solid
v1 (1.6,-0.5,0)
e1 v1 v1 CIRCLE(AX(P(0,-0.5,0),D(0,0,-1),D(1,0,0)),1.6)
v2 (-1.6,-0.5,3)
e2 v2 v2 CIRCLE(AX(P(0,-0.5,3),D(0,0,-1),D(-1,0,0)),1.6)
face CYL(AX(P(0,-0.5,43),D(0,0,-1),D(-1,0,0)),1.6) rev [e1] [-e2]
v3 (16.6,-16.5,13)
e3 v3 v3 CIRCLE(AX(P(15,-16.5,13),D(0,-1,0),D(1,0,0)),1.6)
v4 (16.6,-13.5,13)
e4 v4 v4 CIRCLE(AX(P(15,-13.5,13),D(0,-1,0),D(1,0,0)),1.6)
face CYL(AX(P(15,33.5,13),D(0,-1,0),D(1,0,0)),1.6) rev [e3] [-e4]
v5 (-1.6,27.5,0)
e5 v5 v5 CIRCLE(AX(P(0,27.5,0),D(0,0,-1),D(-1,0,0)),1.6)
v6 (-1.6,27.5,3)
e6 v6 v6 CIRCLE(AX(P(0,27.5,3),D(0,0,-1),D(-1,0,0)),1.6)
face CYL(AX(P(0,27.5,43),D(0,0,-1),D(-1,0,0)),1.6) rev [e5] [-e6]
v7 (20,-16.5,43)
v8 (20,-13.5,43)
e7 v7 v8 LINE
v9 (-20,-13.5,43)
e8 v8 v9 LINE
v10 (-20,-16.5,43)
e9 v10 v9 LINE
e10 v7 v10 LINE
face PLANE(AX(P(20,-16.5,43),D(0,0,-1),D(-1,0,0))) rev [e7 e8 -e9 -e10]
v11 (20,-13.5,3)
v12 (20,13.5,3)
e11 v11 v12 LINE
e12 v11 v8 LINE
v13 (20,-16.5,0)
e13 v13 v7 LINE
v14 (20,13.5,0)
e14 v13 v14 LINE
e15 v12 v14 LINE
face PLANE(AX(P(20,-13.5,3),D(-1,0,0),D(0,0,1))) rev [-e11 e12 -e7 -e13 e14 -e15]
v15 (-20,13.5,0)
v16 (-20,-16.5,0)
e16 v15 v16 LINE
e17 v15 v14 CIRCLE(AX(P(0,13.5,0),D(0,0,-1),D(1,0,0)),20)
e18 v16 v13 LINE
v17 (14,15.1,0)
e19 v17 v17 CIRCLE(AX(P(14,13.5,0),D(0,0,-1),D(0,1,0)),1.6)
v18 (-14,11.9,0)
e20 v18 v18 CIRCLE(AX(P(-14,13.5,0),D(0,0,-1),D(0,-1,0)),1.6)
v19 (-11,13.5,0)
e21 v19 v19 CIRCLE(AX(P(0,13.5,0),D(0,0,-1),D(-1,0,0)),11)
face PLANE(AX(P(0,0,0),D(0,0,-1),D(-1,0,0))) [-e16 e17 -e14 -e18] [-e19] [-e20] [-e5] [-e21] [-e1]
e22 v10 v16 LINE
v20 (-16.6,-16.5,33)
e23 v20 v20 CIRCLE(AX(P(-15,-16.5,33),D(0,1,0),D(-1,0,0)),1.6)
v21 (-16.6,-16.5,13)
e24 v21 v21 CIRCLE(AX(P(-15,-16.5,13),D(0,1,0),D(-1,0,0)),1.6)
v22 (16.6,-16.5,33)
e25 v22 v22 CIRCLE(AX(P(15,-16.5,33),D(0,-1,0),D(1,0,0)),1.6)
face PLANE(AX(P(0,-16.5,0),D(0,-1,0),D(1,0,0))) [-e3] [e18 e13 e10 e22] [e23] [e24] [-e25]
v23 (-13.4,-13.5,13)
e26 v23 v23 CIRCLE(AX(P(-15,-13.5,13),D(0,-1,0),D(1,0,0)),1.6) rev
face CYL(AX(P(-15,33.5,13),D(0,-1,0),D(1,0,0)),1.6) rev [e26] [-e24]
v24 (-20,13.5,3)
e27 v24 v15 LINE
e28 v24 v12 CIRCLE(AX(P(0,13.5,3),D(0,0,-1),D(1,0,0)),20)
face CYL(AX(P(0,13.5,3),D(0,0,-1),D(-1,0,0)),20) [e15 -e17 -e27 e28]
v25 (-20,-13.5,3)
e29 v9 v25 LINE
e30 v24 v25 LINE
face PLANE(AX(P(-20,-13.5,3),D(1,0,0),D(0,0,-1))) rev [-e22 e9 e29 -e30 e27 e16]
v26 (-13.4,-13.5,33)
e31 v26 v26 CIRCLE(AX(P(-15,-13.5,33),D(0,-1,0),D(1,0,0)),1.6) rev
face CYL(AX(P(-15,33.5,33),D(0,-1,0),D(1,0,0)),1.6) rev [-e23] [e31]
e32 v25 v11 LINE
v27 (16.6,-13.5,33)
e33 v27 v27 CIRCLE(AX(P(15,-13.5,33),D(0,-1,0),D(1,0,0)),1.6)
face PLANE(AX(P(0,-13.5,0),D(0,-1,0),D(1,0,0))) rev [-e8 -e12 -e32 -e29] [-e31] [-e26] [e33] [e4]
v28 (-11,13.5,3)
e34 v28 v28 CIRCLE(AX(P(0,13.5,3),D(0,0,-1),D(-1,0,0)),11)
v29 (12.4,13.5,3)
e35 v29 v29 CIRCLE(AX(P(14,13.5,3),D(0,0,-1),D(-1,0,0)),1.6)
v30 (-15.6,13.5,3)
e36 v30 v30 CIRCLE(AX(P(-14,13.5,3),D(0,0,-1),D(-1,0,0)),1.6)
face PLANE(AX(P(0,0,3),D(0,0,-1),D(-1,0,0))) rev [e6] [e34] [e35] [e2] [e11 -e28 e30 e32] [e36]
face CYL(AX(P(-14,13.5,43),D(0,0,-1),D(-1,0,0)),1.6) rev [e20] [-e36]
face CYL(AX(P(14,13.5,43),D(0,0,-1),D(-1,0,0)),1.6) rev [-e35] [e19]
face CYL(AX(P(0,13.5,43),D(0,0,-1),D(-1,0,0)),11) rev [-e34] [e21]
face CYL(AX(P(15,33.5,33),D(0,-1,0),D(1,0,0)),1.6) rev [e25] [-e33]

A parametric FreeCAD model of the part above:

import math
import FreeCAD as App
import Part
import Sketcher

V = App.Vector
Q = App.Units.Quantity

doc = App.newDocument("Part")
params = doc.addObject("Spreadsheet::Sheet", "Params")
for row, (alias, value) in enumerate([
    ("sketch1_width", "40 mm"),
    ("sketch1_height", "27 mm"),
    ("pad1_length", "3 mm"),
    ("sketch2_radius", "20 mm"),
    ("pad2_length", "3 mm"),
    ("sketch3_width", "40 mm"),
    ("sketch3_height", "43 mm"),
    ("pad3_length", "3 mm"),
    ("sketch4_diameter", "22 mm"),
    ("sketch5_diameter", "3.2 mm"),
    ("sketch6_diameter", "3.2 mm"),
    ("linearpattern_pitch", "20 mm"),
    ("sketch7_diameter", "3.2 mm"),
], start=1):
    params.set(f"A{row}", alias)
    params.set(f"B{row}", "=" + value)
    params.setAlias(f"B{row}", alias)

body = doc.addObject("PartDesign::Body", "Body")

# Sketch on XY plane
sketch1 = doc.addObject("Sketcher::SketchObject", "Sketch")
body.addObject(sketch1)
sketch1.AttachmentSupport = (doc.XY_Plane, [""])
sketch1.MapMode = "FlatFace"
sketch1.addGeometry([
    Part.LineSegment(V(-20, 13.5, 0), V(-20, -13.5, 0)),
    Part.LineSegment(V(-20, -13.5, 0), V(20, -13.5, 0)),
    Part.LineSegment(V(20, -13.5, 0), V(20, 13.5, 0)),
    Part.LineSegment(V(20, 13.5, 0), V(-20, 13.5, 0)),
], False)
sketch1.addConstraint([
    Sketcher.Constraint("Coincident", 0, 2, 1, 1),
    Sketcher.Constraint("Coincident", 1, 2, 2, 1),
    Sketcher.Constraint("Coincident", 2, 2, 3, 1),
    Sketcher.Constraint("Coincident", 3, 2, 0, 1),
    Sketcher.Constraint("Vertical", 0),
    Sketcher.Constraint("Horizontal", 1),
    Sketcher.Constraint("Vertical", 2),
    Sketcher.Constraint("Horizontal", 3),
    Sketcher.Constraint("Symmetric", 0, 2, 2, 2, -1, 1),
    Sketcher.Constraint("DistanceX", 1, 1, 1, 2, Q("40 mm")),
    Sketcher.Constraint("DistanceY", 0, 2, 0, 1, Q("27 mm")),
])
sketch1.setExpression("Constraints[9]", "Params.sketch1_width")
sketch1.setExpression("Constraints[10]", "Params.sketch1_height")
pad1 = doc.addObject("PartDesign::Pad", "Pad")
body.addObject(pad1)
pad1.Profile = sketch1
pad1.setExpression("Length", "Params.pad1_length")

# Sketch on XY plane
sketch2 = doc.addObject("Sketcher::SketchObject", "Sketch001")
body.addObject(sketch2)
sketch2.AttachmentSupport = (doc.XY_Plane, [""])
sketch2.MapMode = "FlatFace"
sketch2.addGeometry([
    Part.LineSegment(V(20, 13.5, 0), V(-20, 13.5, 0)),
    Part.ArcOfCircle(Part.Circle(V(0, 13.5, 0), V(0, 0, 1), 20), math.radians(0), math.radians(180)),
], False)
sketch2.addConstraint([
    Sketcher.Constraint("Coincident", 0, 1, 1, 1),
    Sketcher.Constraint("Coincident", 1, 2, 0, 2),
    Sketcher.Constraint("Horizontal", 0),
    Sketcher.Constraint("PointOnObject", 1, 3, -2),
    Sketcher.Constraint("Horizontal", 1, 3, 0, 1),
    Sketcher.Constraint("Radius", 1, Q("20 mm")),
    Sketcher.Constraint("DistanceY", -1, 1, 1, 3, Q("13.5 mm")),
])
sketch2.setExpression("Constraints[5]", "Params.sketch2_radius")
pad2 = doc.addObject("PartDesign::Pad", "Pad001")
body.addObject(pad2)
pad2.Profile = sketch2
pad2.setExpression("Length", "Params.pad2_length")

# Sketch on XZ plane
sketch3 = doc.addObject("Sketcher::SketchObject", "Sketch002")
body.addObject(sketch3)
sketch3.AttachmentSupport = (doc.XZ_Plane, [""])
sketch3.MapMode = "FlatFace"
sketch3.AttachmentOffset = App.Placement(V(0, 0, 13.5), App.Rotation())
sketch3.addGeometry([
    Part.LineSegment(V(-20, 43, 0), V(-20, 0, 0)),
    Part.LineSegment(V(-20, 0, 0), V(20, 0, 0)),
    Part.LineSegment(V(20, 0, 0), V(20, 43, 0)),
    Part.LineSegment(V(20, 43, 0), V(-20, 43, 0)),
], False)
sketch3.addConstraint([
    Sketcher.Constraint("Coincident", 0, 2, 1, 1),
    Sketcher.Constraint("Coincident", 1, 2, 2, 1),
    Sketcher.Constraint("Coincident", 2, 2, 3, 1),
    Sketcher.Constraint("Coincident", 3, 2, 0, 1),
    Sketcher.Constraint("Vertical", 0),
    Sketcher.Constraint("Horizontal", 1),
    Sketcher.Constraint("Vertical", 2),
    Sketcher.Constraint("Horizontal", 3),
    Sketcher.Constraint("Symmetric", 0, 2, 1, 2, -1, 1),
    Sketcher.Constraint("DistanceX", 1, 1, 1, 2, Q("40 mm")),
    Sketcher.Constraint("DistanceY", 0, 2, 0, 1, Q("43 mm")),
])
sketch3.setExpression("Constraints[9]", "Params.sketch3_width")
sketch3.setExpression("Constraints[10]", "Params.sketch3_height")
pad3 = doc.addObject("PartDesign::Pad", "Pad002")
body.addObject(pad3)
pad3.Profile = sketch3
pad3.setExpression("Length", "Params.pad3_length")

# Sketch on XY plane
sketch4 = doc.addObject("Sketcher::SketchObject", "Sketch003")
body.addObject(sketch4)
sketch4.AttachmentSupport = (doc.XY_Plane, [""])
sketch4.MapMode = "FlatFace"
sketch4.addGeometry(Part.Circle(V(0, 13.5, 0), V(0, 0, 1), 11), False)
sketch4.addConstraint([
    Sketcher.Constraint("PointOnObject", 0, 3, -2),
    Sketcher.Constraint("Diameter", 0, Q("22 mm")),
    Sketcher.Constraint("DistanceY", -1, 1, 0, 3, Q("13.5 mm")),
])
sketch4.setExpression("Constraints[1]", "Params.sketch4_diameter")
pocket1 = doc.addObject("PartDesign::Pocket", "Pocket")
body.addObject(pocket1)
pocket1.Profile = sketch4
pocket1.Type = "ThroughAll"
pocket1.Reversed = True

# Sketch on XY plane
sketch5 = doc.addObject("Sketcher::SketchObject", "Sketch004")
body.addObject(sketch5)
sketch5.AttachmentSupport = (doc.XY_Plane, [""])
sketch5.MapMode = "FlatFace"
sketch5.addGeometry(Part.Circle(V(0, 27.5, 0), V(0, 0, 1), 1.6), False)
sketch5.addConstraint([
    Sketcher.Constraint("PointOnObject", 0, 3, -2),
    Sketcher.Constraint("Diameter", 0, Q("3.2 mm")),
    Sketcher.Constraint("DistanceY", -1, 1, 0, 3, Q("27.5 mm")),
])
sketch5.setExpression("Constraints[1]", "Params.sketch5_diameter")
pocket2 = doc.addObject("PartDesign::Pocket", "Pocket001")
body.addObject(pocket2)
pocket2.Profile = sketch5
pocket2.Type = "ThroughAll"
pocket2.Reversed = True
doc.recompute()

datumline = doc.addObject("PartDesign::Line", "DatumLine")
body.addObject(datumline)
datumline.Placement = App.Placement(V(0, 13.5, 0), App.Rotation(V(0, 0, 1), V(0, 0, 1)))
polarpattern = doc.addObject("PartDesign::PolarPattern", "PolarPattern")
body.addObject(polarpattern)
polarpattern.Originals = [pocket2]
polarpattern.Axis = (datumline, [""])
polarpattern.Angle = 360
polarpattern.Occurrences = 4
body.Tip = polarpattern

# Sketch on XZ plane
sketch6 = doc.addObject("Sketcher::SketchObject", "Sketch005")
body.addObject(sketch6)
sketch6.AttachmentSupport = (doc.XZ_Plane, [""])
sketch6.MapMode = "FlatFace"
sketch6.AttachmentOffset = App.Placement(V(0, 0, 16.5), App.Rotation())
sketch6.addGeometry(Part.Circle(V(15, 33, 0), V(0, 0, 1), 1.6), False)
sketch6.addConstraint([
    Sketcher.Constraint("Diameter", 0, Q("3.2 mm")),
    Sketcher.Constraint("DistanceX", -1, 1, 0, 3, Q("15 mm")),
    Sketcher.Constraint("DistanceY", -1, 1, 0, 3, Q("33 mm")),
])
sketch6.setExpression("Constraints[0]", "Params.sketch6_diameter")
pocket3 = doc.addObject("PartDesign::Pocket", "Pocket002")
body.addObject(pocket3)
pocket3.Profile = sketch6
pocket3.Type = "ThroughAll"
doc.recompute()

linearpattern = doc.addObject("PartDesign::LinearPattern", "LinearPattern")
body.addObject(linearpattern)
linearpattern.Originals = [pocket3]
linearpattern.Direction = (doc.Z_Axis, [""])
linearpattern.Mode = "offset"
linearpattern.setExpression("Offset", "Params.linearpattern_pitch")
linearpattern.Occurrences = 2
linearpattern.Reversed = True
body.Tip = linearpattern
doc.recompute()

mirrored = doc.addObject("PartDesign::Mirrored", "Mirrored")
body.addObject(mirrored)
mirrored.Originals = [pocket3]
mirrored.MirrorPlane = (doc.YZ_Plane, [""])
body.Tip = mirrored

# Sketch on XZ plane
sketch7 = doc.addObject("Sketcher::SketchObject", "Sketch006")
body.addObject(sketch7)
sketch7.AttachmentSupport = (doc.XZ_Plane, [""])
sketch7.MapMode = "FlatFace"
sketch7.AttachmentOffset = App.Placement(V(0, 0, 16.5), App.Rotation())
sketch7.addGeometry(Part.Circle(V(-15, 13, 0), V(0, 0, 1), 1.6), False)
sketch7.addConstraint([
    Sketcher.Constraint("Diameter", 0, Q("3.2 mm")),
    Sketcher.Constraint("DistanceX", 0, 3, -1, 1, Q("15 mm")),
    Sketcher.Constraint("DistanceY", -1, 1, 0, 3, Q("13 mm")),
])
sketch7.setExpression("Constraints[0]", "Params.sketch7_diameter")
pocket4 = doc.addObject("PartDesign::Pocket", "Pocket003")
body.addObject(pocket4)
pocket4.Profile = sketch7
pocket4.Type = "ThroughAll"

doc.recompute()
